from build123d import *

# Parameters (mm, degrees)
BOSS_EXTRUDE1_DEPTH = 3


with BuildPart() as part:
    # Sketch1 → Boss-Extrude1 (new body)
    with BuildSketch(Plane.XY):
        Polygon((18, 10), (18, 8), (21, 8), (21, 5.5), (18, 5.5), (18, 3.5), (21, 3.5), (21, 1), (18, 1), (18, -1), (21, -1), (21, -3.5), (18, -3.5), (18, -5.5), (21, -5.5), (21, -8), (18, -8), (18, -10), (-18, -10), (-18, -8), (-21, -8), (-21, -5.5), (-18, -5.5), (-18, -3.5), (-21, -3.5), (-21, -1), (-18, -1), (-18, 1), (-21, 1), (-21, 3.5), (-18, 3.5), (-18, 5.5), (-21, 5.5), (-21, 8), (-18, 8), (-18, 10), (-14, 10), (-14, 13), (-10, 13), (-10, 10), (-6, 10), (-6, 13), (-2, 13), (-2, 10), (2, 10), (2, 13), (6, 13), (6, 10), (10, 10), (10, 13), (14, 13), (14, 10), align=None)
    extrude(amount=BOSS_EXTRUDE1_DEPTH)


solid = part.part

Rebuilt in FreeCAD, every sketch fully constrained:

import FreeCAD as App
import Part
import Sketcher
from FreeCAD import Vector
Q = App.Units.Quantity


def add_polygon(sketch, points):
    """Adds a closed chain of lines whose ends are joined by coincident constraints."""
    first, n = sketch.GeometryCount, len(points)
    for a, b in zip(points, points[1:] + points[:1]):
        sketch.addGeometry(Part.LineSegment(App.Vector(*a, 0), App.Vector(*b, 0)), False)
    for i in range(n):
        sketch.addConstraint(Sketcher.Constraint("Coincident", first + i, 2, first + (i + 1) % n, 1))

doc = App.newDocument("Part")
body = doc.addObject("PartDesign::Body", "Body")

# Sketch on XY plane
sketch1 = doc.addObject("Sketcher::SketchObject", "Sketch")
body.addObject(sketch1)
sketch1.AttachmentSupport = (doc.XY_Plane, [""])
sketch1.MapMode = "FlatFace"
add_polygon(sketch1, [(18, 8), (18, 10), (14, 10), (14, 13), (10, 13), (10, 10), (6, 10), (6, 13), (2, 13), (2, 10), (-2, 10), (-2, 13), (-6, 13), (-6, 10), (-10, 10), (-10, 13), (-14, 13), (-14, 10), (-18, 10), (-18, 8), (-21, 8), (-21, 5.5), (-18, 5.5), (-18, 3.5), (-21, 3.5), (-21, 1), (-18, 1), (-18, -1), (-21, -1), (-21, -3.5), (-18, -3.5), (-18, -5.5), (-21, -5.5), (-21, -8), (-18, -8), (-18, -10), (18, -10), (18, -8), (21, -8), (21, -5.5), (18, -5.5), (18, -3.5), (21, -3.5), (21, -1), (18, -1), (18, 1), (21, 1), (21, 3.5), (18, 3.5), (18, 5.5), (21, 5.5), (21, 8)])  # lines 0-51
sketch1.addConstraint([
    Sketcher.Constraint("Vertical", 0),
    Sketcher.Constraint("Horizontal", 1),
    Sketcher.Constraint("Vertical", 2),
    Sketcher.Constraint("Horizontal", 3),
    Sketcher.Constraint("Vertical", 4),
    Sketcher.Constraint("Horizontal", 5),
    Sketcher.Constraint("Vertical", 6),
    Sketcher.Constraint("Horizontal", 7),
    Sketcher.Constraint("Vertical", 8),
    Sketcher.Constraint("Horizontal", 9),
    Sketcher.Constraint("Vertical", 10),
    Sketcher.Constraint("Horizontal", 11),
    Sketcher.Constraint("Vertical", 12),
    Sketcher.Constraint("Horizontal", 13),
    Sketcher.Constraint("Vertical", 14),
    Sketcher.Constraint("Horizontal", 15),
    Sketcher.Constraint("Vertical", 16),
    Sketcher.Constraint("Horizontal", 17),
    Sketcher.Constraint("Vertical", 18),
    Sketcher.Constraint("Horizontal", 19),
    Sketcher.Constraint("Vertical", 20),
    Sketcher.Constraint("Horizontal", 21),
    Sketcher.Constraint("Vertical", 22),
    Sketcher.Constraint("Horizontal", 23),
    Sketcher.Constraint("Vertical", 24),
    Sketcher.Constraint("Horizontal", 25),
    Sketcher.Constraint("Vertical", 26),
    Sketcher.Constraint("Horizontal", 27),
    Sketcher.Constraint("Vertical", 28),
    Sketcher.Constraint("Horizontal", 29),
    Sketcher.Constraint("Vertical", 30),
    Sketcher.Constraint("Horizontal", 31),
    Sketcher.Constraint("Vertical", 32),
    Sketcher.Constraint("Horizontal", 33),
    Sketcher.Constraint("Vertical", 34),
    Sketcher.Constraint("Horizontal", 35),
    Sketcher.Constraint("Vertical", 36),
    Sketcher.Constraint("Horizontal", 37),
    Sketcher.Constraint("Vertical", 38),
    Sketcher.Constraint("Horizontal", 39),
    Sketcher.Constraint("Vertical", 40),
    Sketcher.Constraint("Horizontal", 41),
    Sketcher.Constraint("Vertical", 42),
    Sketcher.Constraint("Horizontal", 43),
    Sketcher.Constraint("Vertical", 44),
    Sketcher.Constraint("Horizontal", 45),
    Sketcher.Constraint("Vertical", 46),
    Sketcher.Constraint("Horizontal", 47),
    Sketcher.Constraint("Vertical", 48),
    Sketcher.Constraint("Horizontal", 49),
    Sketcher.Constraint("Vertical", 50),
    Sketcher.Constraint("Horizontal", 51),
    Sketcher.Constraint("Symmetric", 0, 2, 34, 2, -1, 1),
    Sketcher.Constraint("Symmetric", 17, 2, 35, 2, -1, 1),
    Sketcher.Constraint("Symmetric", 19, 2, 37, 2, -1, 1),
    Sketcher.Constraint("Symmetric", 21, 2, 39, 2, -1, 1),
    Sketcher.Constraint("Symmetric", 23, 2, 41, 2, -1, 1),
    Sketcher.Constraint("Symmetric", 25, 2, 43, 2, -1, 1),
    Sketcher.Constraint("Symmetric", 27, 2, 45, 2, -1, 1),
    Sketcher.Constraint("Symmetric", 29, 2, 47, 2, -1, 1),
    Sketcher.Constraint("Symmetric", 31, 2, 49, 2, -1, 1),
    Sketcher.Constraint("Symmetric", 7, 2, 10, 2, -2),
    Sketcher.Constraint("Symmetric", 5, 2, 12, 2, -2),
    Sketcher.Constraint("Symmetric", 3, 2, 14, 2, -2),
    Sketcher.Constraint("Symmetric", 33, 2, 36, 2, -2),
    Sketcher.Constraint("Symmetric", 31, 2, 38, 2, -2),
    Sketcher.Constraint("Symmetric", 29, 2, 40, 2, -2),
    Sketcher.Constraint("Symmetric", 27, 2, 42, 2, -2),
    Sketcher.Constraint("Horizontal", 1, 2, 4, 2),
    Sketcher.Constraint("Horizontal", 3, 2, 6, 2),
    Sketcher.Constraint("Horizontal", 5, 2, 8, 2),
    Sketcher.Constraint("Horizontal", 19, 2, 50, 2),
    Sketcher.Constraint("Vertical", 18, 2, 21, 2),
    Sketcher.Constraint("Vertical", 20, 2, 23, 2),
    Sketcher.Constraint("Vertical", 22, 2, 25, 2),
    Sketcher.Constraint("Equal", 1, 3),
    Sketcher.Constraint("Equal", 3, 5),
    Sketcher.Constraint("Equal", 5, 7),
    Sketcher.Constraint("Equal", 7, 9),
    Sketcher.Constraint("Equal", 13, 15),
    Sketcher.Constraint("Equal", 51, 2),
    Sketcher.Constraint("Equal", 18, 22),
    Sketcher.Constraint("Equal", 20, 24),
    Sketcher.Constraint("Equal", 22, 26),
    Sketcher.Constraint("DistanceX", 1, 2, 1, 1, Q("4 mm")),
    Sketcher.Constraint("DistanceX", 19, 2, 19, 1, Q("3 mm")),
    Sketcher.Constraint("DistanceY", 0, 1, 0, 2, Q("2 mm")),
    Sketcher.Constraint("DistanceY", 20, 2, 20, 1, Q("2.5 mm")),
])
pad1 = doc.addObject("PartDesign::Pad", "Pad")
body.addObject(pad1)
pad1.Profile = sketch1
pad1.Length = 3

doc.recompute()
